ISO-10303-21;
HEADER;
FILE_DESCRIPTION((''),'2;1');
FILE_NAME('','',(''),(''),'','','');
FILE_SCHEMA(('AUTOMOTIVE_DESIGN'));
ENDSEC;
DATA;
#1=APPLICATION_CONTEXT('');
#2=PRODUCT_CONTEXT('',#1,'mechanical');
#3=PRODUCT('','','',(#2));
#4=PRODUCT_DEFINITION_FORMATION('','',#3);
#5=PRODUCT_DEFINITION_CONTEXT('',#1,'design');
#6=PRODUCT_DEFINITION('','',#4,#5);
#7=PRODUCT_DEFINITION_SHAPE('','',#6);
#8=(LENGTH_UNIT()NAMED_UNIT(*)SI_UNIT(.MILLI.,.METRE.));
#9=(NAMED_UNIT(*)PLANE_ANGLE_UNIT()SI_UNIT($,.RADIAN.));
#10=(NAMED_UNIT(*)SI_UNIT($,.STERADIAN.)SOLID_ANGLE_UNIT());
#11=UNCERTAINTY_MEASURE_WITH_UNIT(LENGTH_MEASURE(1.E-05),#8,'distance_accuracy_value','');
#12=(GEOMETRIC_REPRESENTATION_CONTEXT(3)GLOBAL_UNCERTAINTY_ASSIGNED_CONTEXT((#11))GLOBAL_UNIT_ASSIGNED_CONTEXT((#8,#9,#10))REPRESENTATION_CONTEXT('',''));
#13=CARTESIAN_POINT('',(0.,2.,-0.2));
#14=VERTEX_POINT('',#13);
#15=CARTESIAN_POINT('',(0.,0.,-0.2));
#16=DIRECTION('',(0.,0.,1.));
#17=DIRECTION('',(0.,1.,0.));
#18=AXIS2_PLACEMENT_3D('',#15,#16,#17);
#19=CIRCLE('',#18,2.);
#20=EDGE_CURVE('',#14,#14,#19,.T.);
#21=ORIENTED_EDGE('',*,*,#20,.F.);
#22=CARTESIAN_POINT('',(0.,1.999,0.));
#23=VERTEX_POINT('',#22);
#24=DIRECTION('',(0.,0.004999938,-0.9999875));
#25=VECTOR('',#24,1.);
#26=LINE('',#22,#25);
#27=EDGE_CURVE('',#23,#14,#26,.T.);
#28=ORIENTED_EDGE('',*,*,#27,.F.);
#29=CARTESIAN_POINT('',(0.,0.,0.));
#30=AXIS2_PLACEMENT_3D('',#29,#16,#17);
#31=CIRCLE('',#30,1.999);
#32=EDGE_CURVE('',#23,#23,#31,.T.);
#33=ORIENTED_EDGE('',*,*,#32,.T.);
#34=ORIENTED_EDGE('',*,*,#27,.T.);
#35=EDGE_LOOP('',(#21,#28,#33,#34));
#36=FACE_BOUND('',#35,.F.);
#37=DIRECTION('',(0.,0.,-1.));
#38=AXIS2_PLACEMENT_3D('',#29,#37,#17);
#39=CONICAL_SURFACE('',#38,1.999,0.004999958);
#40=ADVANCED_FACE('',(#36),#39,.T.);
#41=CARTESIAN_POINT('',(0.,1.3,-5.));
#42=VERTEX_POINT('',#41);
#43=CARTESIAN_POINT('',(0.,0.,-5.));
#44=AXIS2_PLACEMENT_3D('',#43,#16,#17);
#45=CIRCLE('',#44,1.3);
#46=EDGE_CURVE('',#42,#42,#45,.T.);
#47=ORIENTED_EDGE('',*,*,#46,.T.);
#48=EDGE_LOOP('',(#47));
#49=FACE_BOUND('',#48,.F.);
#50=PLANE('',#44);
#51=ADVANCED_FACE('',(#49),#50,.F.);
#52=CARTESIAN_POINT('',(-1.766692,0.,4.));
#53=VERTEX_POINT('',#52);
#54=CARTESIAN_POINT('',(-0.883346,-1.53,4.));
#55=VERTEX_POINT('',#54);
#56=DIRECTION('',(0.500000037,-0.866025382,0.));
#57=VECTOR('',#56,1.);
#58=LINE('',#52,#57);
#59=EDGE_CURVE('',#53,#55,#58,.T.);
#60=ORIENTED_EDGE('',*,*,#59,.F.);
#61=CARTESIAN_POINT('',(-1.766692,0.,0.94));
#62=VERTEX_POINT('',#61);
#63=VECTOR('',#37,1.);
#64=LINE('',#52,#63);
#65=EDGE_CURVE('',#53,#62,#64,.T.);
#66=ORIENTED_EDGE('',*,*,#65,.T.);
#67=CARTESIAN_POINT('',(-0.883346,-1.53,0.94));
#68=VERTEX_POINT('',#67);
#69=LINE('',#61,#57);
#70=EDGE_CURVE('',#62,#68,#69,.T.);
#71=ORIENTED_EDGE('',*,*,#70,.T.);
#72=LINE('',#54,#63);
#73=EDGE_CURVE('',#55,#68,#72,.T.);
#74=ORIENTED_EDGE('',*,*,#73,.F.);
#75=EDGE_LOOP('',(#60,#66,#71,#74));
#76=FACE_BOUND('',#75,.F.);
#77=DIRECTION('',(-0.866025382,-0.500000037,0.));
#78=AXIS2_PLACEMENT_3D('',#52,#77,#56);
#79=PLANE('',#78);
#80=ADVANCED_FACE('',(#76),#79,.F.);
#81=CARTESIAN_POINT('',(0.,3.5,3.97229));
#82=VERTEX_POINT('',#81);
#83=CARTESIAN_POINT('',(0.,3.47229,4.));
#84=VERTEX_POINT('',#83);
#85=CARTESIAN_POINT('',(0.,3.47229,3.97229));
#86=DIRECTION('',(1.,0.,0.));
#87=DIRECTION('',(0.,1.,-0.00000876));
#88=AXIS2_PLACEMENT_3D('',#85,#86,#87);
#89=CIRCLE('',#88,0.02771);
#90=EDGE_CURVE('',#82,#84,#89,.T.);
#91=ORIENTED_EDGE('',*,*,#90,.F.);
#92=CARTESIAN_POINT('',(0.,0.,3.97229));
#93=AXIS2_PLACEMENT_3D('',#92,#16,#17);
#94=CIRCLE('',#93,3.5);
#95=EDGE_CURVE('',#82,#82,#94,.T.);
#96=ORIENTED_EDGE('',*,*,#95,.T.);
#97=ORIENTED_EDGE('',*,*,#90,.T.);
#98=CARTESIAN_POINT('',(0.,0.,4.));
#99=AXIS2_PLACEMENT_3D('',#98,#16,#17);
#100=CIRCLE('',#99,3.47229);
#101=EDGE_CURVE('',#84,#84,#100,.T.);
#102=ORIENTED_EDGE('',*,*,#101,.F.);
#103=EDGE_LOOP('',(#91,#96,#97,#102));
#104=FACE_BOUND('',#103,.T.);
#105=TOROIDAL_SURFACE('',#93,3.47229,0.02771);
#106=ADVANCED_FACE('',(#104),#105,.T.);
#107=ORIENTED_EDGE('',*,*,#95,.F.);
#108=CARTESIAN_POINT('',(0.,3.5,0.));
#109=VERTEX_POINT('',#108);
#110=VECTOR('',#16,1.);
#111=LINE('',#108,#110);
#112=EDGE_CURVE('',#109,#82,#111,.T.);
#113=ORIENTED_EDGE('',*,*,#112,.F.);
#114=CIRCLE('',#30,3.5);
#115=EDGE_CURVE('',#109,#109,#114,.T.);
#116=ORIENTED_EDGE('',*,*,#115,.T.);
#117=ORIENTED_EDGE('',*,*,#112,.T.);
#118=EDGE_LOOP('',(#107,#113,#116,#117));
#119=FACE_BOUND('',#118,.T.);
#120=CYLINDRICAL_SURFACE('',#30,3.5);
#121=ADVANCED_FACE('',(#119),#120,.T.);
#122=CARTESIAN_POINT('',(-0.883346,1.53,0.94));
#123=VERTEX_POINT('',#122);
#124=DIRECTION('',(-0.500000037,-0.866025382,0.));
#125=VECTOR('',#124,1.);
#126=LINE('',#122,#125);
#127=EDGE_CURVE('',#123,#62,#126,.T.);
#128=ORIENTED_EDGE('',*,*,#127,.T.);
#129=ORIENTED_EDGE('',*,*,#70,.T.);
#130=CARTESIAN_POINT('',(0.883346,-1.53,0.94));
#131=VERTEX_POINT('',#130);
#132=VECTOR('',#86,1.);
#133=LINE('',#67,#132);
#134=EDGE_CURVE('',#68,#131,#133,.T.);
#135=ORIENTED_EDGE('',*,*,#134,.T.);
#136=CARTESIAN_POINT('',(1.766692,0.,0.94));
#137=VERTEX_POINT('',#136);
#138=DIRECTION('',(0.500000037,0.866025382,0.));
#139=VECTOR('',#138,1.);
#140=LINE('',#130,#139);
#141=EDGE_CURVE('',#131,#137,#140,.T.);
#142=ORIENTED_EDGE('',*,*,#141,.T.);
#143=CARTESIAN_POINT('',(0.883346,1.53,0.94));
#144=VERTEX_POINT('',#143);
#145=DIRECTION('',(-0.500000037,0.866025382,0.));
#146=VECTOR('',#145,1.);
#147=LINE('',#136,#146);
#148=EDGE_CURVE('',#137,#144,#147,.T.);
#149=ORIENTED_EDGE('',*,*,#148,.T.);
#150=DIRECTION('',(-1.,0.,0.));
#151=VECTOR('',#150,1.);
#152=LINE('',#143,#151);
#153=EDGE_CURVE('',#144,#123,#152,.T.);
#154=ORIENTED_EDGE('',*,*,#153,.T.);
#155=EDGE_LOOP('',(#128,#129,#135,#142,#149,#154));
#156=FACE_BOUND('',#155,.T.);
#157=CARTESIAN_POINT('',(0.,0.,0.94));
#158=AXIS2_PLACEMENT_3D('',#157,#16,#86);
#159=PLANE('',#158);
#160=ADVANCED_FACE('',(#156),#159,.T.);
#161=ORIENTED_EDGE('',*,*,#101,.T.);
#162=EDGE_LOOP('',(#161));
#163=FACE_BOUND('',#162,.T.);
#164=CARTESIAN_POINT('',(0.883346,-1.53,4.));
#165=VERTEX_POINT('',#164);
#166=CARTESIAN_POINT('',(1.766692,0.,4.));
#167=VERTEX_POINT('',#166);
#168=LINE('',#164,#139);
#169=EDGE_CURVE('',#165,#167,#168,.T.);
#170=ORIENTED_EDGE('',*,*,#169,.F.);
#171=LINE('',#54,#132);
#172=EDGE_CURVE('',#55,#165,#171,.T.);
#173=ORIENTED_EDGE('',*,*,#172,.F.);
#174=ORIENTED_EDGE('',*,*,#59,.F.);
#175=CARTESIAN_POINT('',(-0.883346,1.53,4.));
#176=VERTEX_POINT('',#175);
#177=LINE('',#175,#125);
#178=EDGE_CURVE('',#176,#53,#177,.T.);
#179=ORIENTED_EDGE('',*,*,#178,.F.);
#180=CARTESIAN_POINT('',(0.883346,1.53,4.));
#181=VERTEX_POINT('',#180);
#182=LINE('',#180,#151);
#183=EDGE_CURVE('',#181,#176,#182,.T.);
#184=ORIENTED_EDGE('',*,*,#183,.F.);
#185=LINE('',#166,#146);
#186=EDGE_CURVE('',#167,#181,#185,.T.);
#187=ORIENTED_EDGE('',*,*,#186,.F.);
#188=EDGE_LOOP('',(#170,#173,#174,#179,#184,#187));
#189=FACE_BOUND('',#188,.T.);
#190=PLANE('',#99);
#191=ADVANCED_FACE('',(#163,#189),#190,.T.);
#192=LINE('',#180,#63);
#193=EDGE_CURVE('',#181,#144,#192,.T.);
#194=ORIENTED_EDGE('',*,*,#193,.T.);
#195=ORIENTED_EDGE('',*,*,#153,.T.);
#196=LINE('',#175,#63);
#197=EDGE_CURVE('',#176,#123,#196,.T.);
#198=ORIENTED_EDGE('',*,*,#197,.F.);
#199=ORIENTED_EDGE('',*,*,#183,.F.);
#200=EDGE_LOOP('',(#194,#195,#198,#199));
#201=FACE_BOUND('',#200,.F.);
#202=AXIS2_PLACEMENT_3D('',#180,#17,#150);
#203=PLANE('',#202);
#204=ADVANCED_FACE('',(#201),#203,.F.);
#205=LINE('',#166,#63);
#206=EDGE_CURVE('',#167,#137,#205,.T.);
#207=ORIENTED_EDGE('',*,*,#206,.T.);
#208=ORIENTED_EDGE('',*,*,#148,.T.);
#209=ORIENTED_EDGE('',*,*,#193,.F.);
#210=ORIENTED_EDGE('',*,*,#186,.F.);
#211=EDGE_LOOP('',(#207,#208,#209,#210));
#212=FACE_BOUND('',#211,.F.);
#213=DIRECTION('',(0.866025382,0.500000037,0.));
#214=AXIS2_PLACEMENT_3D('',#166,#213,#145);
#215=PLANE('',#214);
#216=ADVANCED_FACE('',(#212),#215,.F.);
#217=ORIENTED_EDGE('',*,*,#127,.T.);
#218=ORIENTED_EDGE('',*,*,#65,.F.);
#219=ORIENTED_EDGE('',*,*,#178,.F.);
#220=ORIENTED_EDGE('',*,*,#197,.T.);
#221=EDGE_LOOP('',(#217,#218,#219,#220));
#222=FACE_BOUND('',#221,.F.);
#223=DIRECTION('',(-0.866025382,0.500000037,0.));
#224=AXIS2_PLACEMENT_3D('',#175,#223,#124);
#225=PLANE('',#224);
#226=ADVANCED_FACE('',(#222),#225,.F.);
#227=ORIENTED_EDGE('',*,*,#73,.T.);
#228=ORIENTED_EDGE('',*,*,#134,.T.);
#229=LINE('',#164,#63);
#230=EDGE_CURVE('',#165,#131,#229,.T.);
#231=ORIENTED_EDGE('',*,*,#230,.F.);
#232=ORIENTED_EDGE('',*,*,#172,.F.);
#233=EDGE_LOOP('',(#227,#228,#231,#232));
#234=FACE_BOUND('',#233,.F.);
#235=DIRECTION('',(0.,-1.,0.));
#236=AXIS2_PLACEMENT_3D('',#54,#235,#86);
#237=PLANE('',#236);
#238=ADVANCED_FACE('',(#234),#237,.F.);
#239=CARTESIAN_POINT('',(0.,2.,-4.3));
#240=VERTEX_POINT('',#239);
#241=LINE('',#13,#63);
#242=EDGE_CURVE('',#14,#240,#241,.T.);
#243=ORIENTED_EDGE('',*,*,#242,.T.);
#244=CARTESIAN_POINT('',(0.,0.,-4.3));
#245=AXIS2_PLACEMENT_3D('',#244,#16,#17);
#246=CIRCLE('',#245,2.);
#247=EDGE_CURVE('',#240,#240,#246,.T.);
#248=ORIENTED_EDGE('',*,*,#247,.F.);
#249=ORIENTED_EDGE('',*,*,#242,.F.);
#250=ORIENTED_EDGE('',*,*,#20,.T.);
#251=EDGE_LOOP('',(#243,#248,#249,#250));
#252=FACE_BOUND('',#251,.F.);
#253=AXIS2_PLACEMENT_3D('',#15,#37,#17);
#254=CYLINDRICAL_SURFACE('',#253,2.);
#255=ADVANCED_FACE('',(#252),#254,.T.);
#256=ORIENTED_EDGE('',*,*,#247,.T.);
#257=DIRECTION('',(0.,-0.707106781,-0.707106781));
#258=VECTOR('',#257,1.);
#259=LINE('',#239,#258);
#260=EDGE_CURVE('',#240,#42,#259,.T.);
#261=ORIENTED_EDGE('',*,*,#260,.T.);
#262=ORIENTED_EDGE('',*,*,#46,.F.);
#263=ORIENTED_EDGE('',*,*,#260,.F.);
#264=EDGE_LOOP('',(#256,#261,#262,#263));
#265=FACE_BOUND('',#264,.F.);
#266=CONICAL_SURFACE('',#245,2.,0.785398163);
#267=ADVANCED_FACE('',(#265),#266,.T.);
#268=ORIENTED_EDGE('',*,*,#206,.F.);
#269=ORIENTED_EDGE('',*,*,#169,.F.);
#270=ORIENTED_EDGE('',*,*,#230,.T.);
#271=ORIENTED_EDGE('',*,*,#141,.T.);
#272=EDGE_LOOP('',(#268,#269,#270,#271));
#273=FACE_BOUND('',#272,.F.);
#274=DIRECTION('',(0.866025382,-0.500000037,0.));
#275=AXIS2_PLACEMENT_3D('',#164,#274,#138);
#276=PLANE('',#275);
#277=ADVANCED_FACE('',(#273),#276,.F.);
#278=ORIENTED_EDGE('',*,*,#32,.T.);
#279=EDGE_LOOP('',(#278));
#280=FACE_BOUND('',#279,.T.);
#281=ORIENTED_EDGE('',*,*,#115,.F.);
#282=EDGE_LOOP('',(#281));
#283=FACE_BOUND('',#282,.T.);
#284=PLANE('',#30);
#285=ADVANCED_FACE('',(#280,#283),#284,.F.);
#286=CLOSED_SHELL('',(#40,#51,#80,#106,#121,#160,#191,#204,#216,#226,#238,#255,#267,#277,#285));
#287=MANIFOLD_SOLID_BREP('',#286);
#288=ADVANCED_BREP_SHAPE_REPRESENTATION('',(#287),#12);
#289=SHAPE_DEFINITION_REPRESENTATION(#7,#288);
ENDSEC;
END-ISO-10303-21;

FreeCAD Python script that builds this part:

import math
import FreeCAD as App
import Part
import Sketcher

V = App.Vector
Q = App.Units.Quantity


def add_polygon(sketch, points):
    """Adds a closed chain of lines whose ends are joined by coincident constraints."""
    first, n = sketch.GeometryCount, len(points)
    for a, b in zip(points, points[1:] + points[:1]):
        sketch.addGeometry(Part.LineSegment(App.Vector(*a, 0), App.Vector(*b, 0)), False)
    for i in range(n):
        sketch.addConstraint(Sketcher.Constraint("Coincident", first + i, 2, first + (i + 1) % n, 1))

doc = App.newDocument("Part")
body = doc.addObject("PartDesign::Body", "Body")

# Sketch on YZ plane
sketch1 = body.newObject("Sketcher::SketchObject", "Sketch")
sketch1.AttachmentSupport = (doc.getObject("YZ_Plane"), [""])
sketch1.MapMode = "FlatFace"
sketch1.addGeometry(Part.LineSegment(V(1.999, 0, 0), V(3.5, 0, 0)), False)
sketch1.addGeometry(Part.LineSegment(V(3.5, 0, 0), V(3.5, 3.972, 0)), False)
sketch1.addGeometry(Part.ArcOfCircle(Part.Circle(V(3.472, 3.972, 0), V(0, 0, 1), 0.028), math.radians(0), math.radians(90)), False)
sketch1.addGeometry(Part.LineSegment(V(3.472, 4, 0), V(0, 4, 0)), False)
sketch1.addGeometry(Part.LineSegment(V(0, 4, 0), V(0, -5, 0)), False)
sketch1.addGeometry(Part.LineSegment(V(0, -5, 0), V(1.3, -5, 0)), False)
sketch1.addGeometry(Part.LineSegment(V(1.3, -5, 0), V(2, -4.3, 0)), False)
sketch1.addGeometry(Part.LineSegment(V(2, -4.3, 0), V(2, -0.2, 0)), False)
sketch1.addGeometry(Part.LineSegment(V(2, -0.2, 0), V(1.999, 0, 0)), False)
sketch1.addConstraint(Sketcher.Constraint("Coincident", 0, 2, 1, 1))
sketch1.addConstraint(Sketcher.Constraint("Coincident", 1, 2, 2, 1))
sketch1.addConstraint(Sketcher.Constraint("Coincident", 2, 2, 3, 1))
sketch1.addConstraint(Sketcher.Constraint("Coincident", 3, 2, 4, 1))
sketch1.addConstraint(Sketcher.Constraint("Coincident", 4, 2, 5, 1))
sketch1.addConstraint(Sketcher.Constraint("Coincident", 5, 2, 6, 1))
sketch1.addConstraint(Sketcher.Constraint("Coincident", 6, 2, 7, 1))
sketch1.addConstraint(Sketcher.Constraint("Coincident", 7, 2, 8, 1))
sketch1.addConstraint(Sketcher.Constraint("Coincident", 8, 2, 0, 1))
sketch1.addConstraint(Sketcher.Constraint("Horizontal", 0))
sketch1.addConstraint(Sketcher.Constraint("Vertical", 1))
sketch1.addConstraint(Sketcher.Constraint("Horizontal", 3))
sketch1.addConstraint(Sketcher.Constraint("Vertical", 4))
sketch1.addConstraint(Sketcher.Constraint("Horizontal", 5))
sketch1.addConstraint(Sketcher.Constraint("Vertical", 7))
sketch1.addConstraint(Sketcher.Constraint("PointOnObject", 0, 2, -1))
sketch1.addConstraint(Sketcher.Constraint("PointOnObject", 3, 2, -2))
sketch1.addConstraint(Sketcher.Constraint("Horizontal", 2, 3, 1, 2))
sketch1.addConstraint(Sketcher.Constraint("DistanceY", 4, 2, 4, 1, 9.0))
sketch1.addConstraint(Sketcher.Constraint("Angle", 6, Q("45 deg")))
sketch1.addConstraint(Sketcher.Constraint("DistanceX", 5, 1, 5, 2, 1.3))
sketch1.addConstraint(Sketcher.Constraint("DistanceY", 7, 1, 7, 2, 4.1))
sketch1.addConstraint(Sketcher.Constraint("DistanceY", -1, 1, 2, 2, 4.0))
sketch1.addConstraint(Sketcher.Constraint("DistanceX", -1, 1, 6, 2, 2.0))
sketch1.addConstraint(Sketcher.Constraint("DistanceX", -1, 1, 0, 2, 3.5))
sketch1.addConstraint(Sketcher.Constraint("DistanceX", 0, 1, 0, 2, 1.501))
sketch1.addConstraint(Sketcher.Constraint("Radius", 2, 0.02771))
sketch1.addConstraint(Sketcher.Constraint("DistanceX", 3, 2, 3, 1, 3.47229))
revolution = body.newObject("PartDesign::Revolution", "Revolution")
revolution.Profile = sketch1
revolution.ReferenceAxis = (sketch1, ["V_Axis"])
revolution.Angle = 360

# Sketch on XY plane
sketch2 = body.newObject("Sketcher::SketchObject", "Sketch001")
sketch2.AttachmentSupport = (doc.getObject("XY_Plane"), [""])
sketch2.MapMode = "FlatFace"
sketch2.AttachmentOffset = App.Placement(V(0, 0, 4), App.Rotation())
add_polygon(sketch2, [(1.8, 0), (0.9, 1.5), (-0.9, 1.5), (-1.8, 0), (-0.9, -1.5), (0.9, -1.5)])  # lines 0-5
sketch2.addConstraint(Sketcher.Constraint("Horizontal", 1))
sketch2.addConstraint(Sketcher.Constraint("Horizontal", 4))
sketch2.addConstraint(Sketcher.Constraint("Symmetric", 0, 2, 3, 2, -1, 1))
sketch2.addConstraint(Sketcher.Constraint("Symmetric", 2, 2, 5, 2, -1, 1))
sketch2.addConstraint(Sketcher.Constraint("PointOnObject", 2, 2, -1))
sketch2.addConstraint(Sketcher.Constraint("Parallel", 2, 5))
sketch2.addConstraint(Sketcher.Constraint("Vertical", 1, 2, 3, 2))
sketch2.addConstraint(Sketcher.Constraint("Angle", 0, Q("120.000002 deg")))
sketch2.addConstraint(Sketcher.Constraint("DistanceY", -1, 1, 0, 2, 1.53))
sketch2.addConstraint(Sketcher.Constraint("DistanceX", 1, 2, 1, 1, 1.766692))
pocket1 = body.newObject("PartDesign::Pocket", "Pocket")
pocket1.Profile = sketch2
pocket1.Length = 3.06

doc.recompute()
